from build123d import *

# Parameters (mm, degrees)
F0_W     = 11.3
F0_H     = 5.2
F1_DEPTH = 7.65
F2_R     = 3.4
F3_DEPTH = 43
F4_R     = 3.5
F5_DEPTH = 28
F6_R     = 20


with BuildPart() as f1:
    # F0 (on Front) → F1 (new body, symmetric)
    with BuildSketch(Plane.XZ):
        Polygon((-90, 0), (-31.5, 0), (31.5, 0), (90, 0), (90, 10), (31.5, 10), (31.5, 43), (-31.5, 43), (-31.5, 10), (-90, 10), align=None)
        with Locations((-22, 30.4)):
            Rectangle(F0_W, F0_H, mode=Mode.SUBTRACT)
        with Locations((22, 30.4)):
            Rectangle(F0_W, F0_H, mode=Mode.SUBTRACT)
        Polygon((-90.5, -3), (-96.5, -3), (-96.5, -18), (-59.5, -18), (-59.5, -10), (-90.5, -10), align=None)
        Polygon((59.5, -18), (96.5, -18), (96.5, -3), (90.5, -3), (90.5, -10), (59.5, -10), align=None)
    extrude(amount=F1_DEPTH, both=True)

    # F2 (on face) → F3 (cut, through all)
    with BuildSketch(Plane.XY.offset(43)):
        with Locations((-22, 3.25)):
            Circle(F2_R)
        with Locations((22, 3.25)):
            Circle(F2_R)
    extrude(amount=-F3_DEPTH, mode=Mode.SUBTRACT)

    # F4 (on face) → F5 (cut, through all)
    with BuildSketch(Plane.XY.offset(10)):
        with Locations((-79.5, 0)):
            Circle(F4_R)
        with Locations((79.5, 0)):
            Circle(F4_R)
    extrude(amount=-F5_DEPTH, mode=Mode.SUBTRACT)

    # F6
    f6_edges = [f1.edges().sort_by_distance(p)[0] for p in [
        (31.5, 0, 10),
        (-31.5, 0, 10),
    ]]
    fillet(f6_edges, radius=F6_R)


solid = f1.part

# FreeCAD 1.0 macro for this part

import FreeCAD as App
import Part
import Sketcher
Q = App.Units.Quantity


def edges_at(feature, points):
    """Names of the edges that pass closest to the given points."""
    edges = feature.Shape.Edges
    near = lambda p: min(range(len(edges)), key=lambda i: edges[i].distToShape(Part.Vertex(*p))[0])
    return sorted({f"Edge{near(p) + 1}" for p in points})

doc = App.newDocument("Part")
params = doc.addObject("Spreadsheet::Sheet", "Params")
for row, (alias, value) in enumerate([
    ("sketch1_width", "180 mm"),
    ("sketch1_width2", "63 mm"),
    ("sketch1_width3", "6 mm"),
    ("sketch1_width4", "37 mm"),
    ("sketch1_height", "10 mm"),
    ("pad1_length", "15.3 mm"),
    ("sketch2_diameter", "6.8 mm"),
    ("sketch3_diameter", "7 mm"),
    ("fillet_radius", "20 mm"),
], start=1):
    params.set(f"A{row}", alias)
    params.set(f"B{row}", "=" + value)
    params.setAlias(f"B{row}", alias)

body = doc.addObject("PartDesign::Body", "Body")
body.AllowCompound = True

sketch1 = body.newObject("Sketcher::SketchObject", "Sketch")
sketch1.AttachmentSupport = (doc.getObject("XZ_Plane"), [""])
sketch1.MapMode = "FlatFace"
sketch1.addGeometry([
    Part.LineSegment(App.Vector(-90, 0, 0), App.Vector(90, 0, 0)),
    Part.LineSegment(App.Vector(90, 0, 0), App.Vector(90, 10, 0)),
    Part.LineSegment(App.Vector(90, 10, 0), App.Vector(32, 10, 0)),
    Part.LineSegment(App.Vector(32, 10, 0), App.Vector(32, 43, 0)),
    Part.LineSegment(App.Vector(32, 43, 0), App.Vector(-32, 43, 0)),
    Part.LineSegment(App.Vector(-32, 43, 0), App.Vector(-32, 10, 0)),
    Part.LineSegment(App.Vector(-32, 10, 0), App.Vector(-90, 10, 0)),
    Part.LineSegment(App.Vector(-90, 10, 0), App.Vector(-90, 0, 0)),
    Part.LineSegment(App.Vector(-16, 28, 0), App.Vector(-28, 28, 0)),
    Part.LineSegment(App.Vector(-28, 28, 0), App.Vector(-28, 33, 0)),
    Part.LineSegment(App.Vector(-28, 33, 0), App.Vector(-16, 33, 0)),
    Part.LineSegment(App.Vector(-16, 33, 0), App.Vector(-16, 28, 0)),
    Part.LineSegment(App.Vector(28, 28, 0), App.Vector(16, 28, 0)),
    Part.LineSegment(App.Vector(16, 28, 0), App.Vector(16, 33, 0)),
    Part.LineSegment(App.Vector(16, 33, 0), App.Vector(28, 33, 0)),
    Part.LineSegment(App.Vector(28, 33, 0), App.Vector(28, 28, 0)),
    Part.LineSegment(App.Vector(-90, -3, 0), App.Vector(-96, -3, 0)),
    Part.LineSegment(App.Vector(-96, -3, 0), App.Vector(-96, -18, 0)),
    Part.LineSegment(App.Vector(-96, -18, 0), App.Vector(-60, -18, 0)),
    Part.LineSegment(App.Vector(-60, -18, 0), App.Vector(-60, -10, 0)),
    Part.LineSegment(App.Vector(-60, -10, 0), App.Vector(-90, -10, 0)),
    Part.LineSegment(App.Vector(-90, -10, 0), App.Vector(-90, -3, 0)),
    Part.LineSegment(App.Vector(60, -18, 0), App.Vector(96, -18, 0)),
    Part.LineSegment(App.Vector(96, -18, 0), App.Vector(96, -3, 0)),
    Part.LineSegment(App.Vector(96, -3, 0), App.Vector(90, -3, 0)),
    Part.LineSegment(App.Vector(90, -3, 0), App.Vector(90, -10, 0)),
    Part.LineSegment(App.Vector(90, -10, 0), App.Vector(60, -10, 0)),
    Part.LineSegment(App.Vector(60, -10, 0), App.Vector(60, -18, 0)),
], False)
sketch1.addConstraint([
    Sketcher.Constraint("Coincident", 0, 2, 1, 1),
    Sketcher.Constraint("Coincident", 1, 2, 2, 1),
    Sketcher.Constraint("Coincident", 2, 2, 3, 1),
    Sketcher.Constraint("Coincident", 3, 2, 4, 1),
    Sketcher.Constraint("Coincident", 4, 2, 5, 1),
    Sketcher.Constraint("Coincident", 5, 2, 6, 1),
    Sketcher.Constraint("Coincident", 6, 2, 7, 1),
    Sketcher.Constraint("Coincident", 7, 2, 0, 1),
    Sketcher.Constraint("Coincident", 8, 2, 9, 1),
    Sketcher.Constraint("Coincident", 9, 2, 10, 1),
    Sketcher.Constraint("Coincident", 10, 2, 11, 1),
    Sketcher.Constraint("Coincident", 11, 2, 8, 1),
    Sketcher.Constraint("Coincident", 12, 2, 13, 1),
    Sketcher.Constraint("Coincident", 13, 2, 14, 1),
    Sketcher.Constraint("Coincident", 14, 2, 15, 1),
    Sketcher.Constraint("Coincident", 15, 2, 12, 1),
    Sketcher.Constraint("Coincident", 16, 2, 17, 1),
    Sketcher.Constraint("Coincident", 17, 2, 18, 1),
    Sketcher.Constraint("Coincident", 18, 2, 19, 1),
    Sketcher.Constraint("Coincident", 19, 2, 20, 1),
    Sketcher.Constraint("Coincident", 20, 2, 21, 1),
    Sketcher.Constraint("Coincident", 21, 2, 16, 1),
    Sketcher.Constraint("Coincident", 22, 2, 23, 1),
    Sketcher.Constraint("Coincident", 23, 2, 24, 1),
    Sketcher.Constraint("Coincident", 24, 2, 25, 1),
    Sketcher.Constraint("Coincident", 25, 2, 26, 1),
    Sketcher.Constraint("Coincident", 26, 2, 27, 1),
    Sketcher.Constraint("Coincident", 27, 2, 22, 1),
    Sketcher.Constraint("Horizontal", 0),
    Sketcher.Constraint("Vertical", 1),
    Sketcher.Constraint("Horizontal", 2),
    Sketcher.Constraint("Vertical", 3),
    Sketcher.Constraint("Horizontal", 4),
    Sketcher.Constraint("Vertical", 5),
    Sketcher.Constraint("Horizontal", 6),
    Sketcher.Constraint("Vertical", 7),
    Sketcher.Constraint("Horizontal", 8),
    Sketcher.Constraint("Vertical", 9),
    Sketcher.Constraint("Horizontal", 10),
    Sketcher.Constraint("Vertical", 11),
    Sketcher.Constraint("Horizontal", 12),
    Sketcher.Constraint("Vertical", 13),
    Sketcher.Constraint("Horizontal", 14),
    Sketcher.Constraint("Vertical", 15),
    Sketcher.Constraint("Horizontal", 16),
    Sketcher.Constraint("Vertical", 17),
    Sketcher.Constraint("Horizontal", 18),
    Sketcher.Constraint("Vertical", 19),
    Sketcher.Constraint("Horizontal", 20),
    Sketcher.Constraint("Vertical", 21),
    Sketcher.Constraint("Horizontal", 22),
    Sketcher.Constraint("Vertical", 23),
    Sketcher.Constraint("Horizontal", 24),
    Sketcher.Constraint("Vertical", 25),
    Sketcher.Constraint("Horizontal", 26),
    Sketcher.Constraint("Vertical", 27),
    Sketcher.Constraint("Symmetric", 0, 2, 7, 2, -1, 1),
    Sketcher.Constraint("Symmetric", 2, 2, 5, 2, -2),
    Sketcher.Constraint("Symmetric", 11, 2, 12, 2, -2),
    Sketcher.Constraint("Symmetric", 9, 2, 14, 2, -2),
    Sketcher.Constraint("Symmetric", 17, 2, 22, 2, -2),
    Sketcher.Constraint("Symmetric", 21, 2, 24, 2, -2),
    Sketcher.Constraint("Symmetric", 19, 2, 26, 2, -2),
    Sketcher.Constraint("DistanceX", 0, 1, 0, 2, Q("180 mm")),
    Sketcher.Constraint("DistanceX", 4, 2, 4, 1, Q("63 mm")),
    Sketcher.Constraint("DistanceX", 16, 2, 16, 1, Q("6 mm")),
    Sketcher.Constraint("DistanceX", 18, 1, 18, 2, Q("37 mm")),
    Sketcher.Constraint("DistanceY", 1, 1, 1, 2, Q("10 mm")),
    Sketcher.Constraint("DistanceY", 3, 1, 3, 2, Q("33 mm")),
    Sketcher.Constraint("DistanceY", 17, 2, 17, 1, Q("15 mm")),
    Sketcher.Constraint("DistanceY", 19, 1, 19, 2, Q("8 mm")),
    Sketcher.Constraint("DistanceX", 8, 2, 8, 1, Q("11.3 mm")),
    Sketcher.Constraint("DistanceY", 9, 1, 9, 2, Q("5.2 mm")),
    Sketcher.Constraint("DistanceY", -1, 1, 9, 2, Q("33 mm")),
    Sketcher.Constraint("DistanceY", 16, 2, -1, 1, Q("3 mm")),
    Sketcher.Constraint("DistanceX", 8, 2, 12, 2, Q("44 mm")),
    Sketcher.Constraint("DistanceX", 16, 2, 5, 2, Q("65 mm")),
])
sketch1.setExpression("Constraints[63]", "Params.sketch1_width")
sketch1.setExpression("Constraints[64]", "Params.sketch1_width2")
sketch1.setExpression("Constraints[65]", "Params.sketch1_width3")
sketch1.setExpression("Constraints[66]", "Params.sketch1_width4")
sketch1.setExpression("Constraints[67]", "Params.sketch1_height")
pad1 = body.newObject("PartDesign::Pad", "Pad")
pad1.Profile = sketch1
pad1.setExpression("Length", "Params.pad1_length")
pad1.Midplane = True

sketch2 = body.newObject("Sketcher::SketchObject", "Sketch001")
sketch2.AttachmentSupport = (doc.getObject("XY_Plane"), [""])
sketch2.MapMode = "FlatFace"
sketch2.AttachmentOffset = App.Placement(App.Vector(0, 0, 43), App.Rotation())
sketch2.addGeometry([
    Part.Circle(App.Vector(-22, 3.2, 0), App.Vector(0, 0, 1), 3.4),
    Part.Circle(App.Vector(22, 3.2, 0), App.Vector(0, 0, 1), 3.4),
], False)
sketch2.addConstraint([
    Sketcher.Constraint("Equal", 0, 1),
    Sketcher.Constraint("Symmetric", 0, 3, 1, 3, -2),
    Sketcher.Constraint("Diameter", 0, Q("6.8 mm")),
    Sketcher.Constraint("DistanceX", 0, 3, -1, 1, Q("22 mm")),
    Sketcher.Constraint("DistanceY", -1, 1, 0, 3, Q("3.25 mm")),
])
sketch2.setExpression("Constraints[2]", "Params.sketch2_diameter")
pocket1 = body.newObject("PartDesign::Pocket", "Pocket")
pocket1.Profile = sketch2
pocket1.Type = "ThroughAll"

sketch3 = body.newObject("Sketcher::SketchObject", "Sketch002")
sketch3.AttachmentSupport = (doc.getObject("XY_Plane"), [""])
sketch3.MapMode = "FlatFace"
sketch3.AttachmentOffset = App.Placement(App.Vector(0, 0, 10), App.Rotation())
sketch3.addGeometry([
    Part.Circle(App.Vector(-79.5, 0, 0), App.Vector(0, 0, 1), 3.5),
    Part.Circle(App.Vector(79.5, 0, 0), App.Vector(0, 0, 1), 3.5),
], False)
sketch3.addConstraint([
    Sketcher.Constraint("Equal", 0, 1),
    Sketcher.Constraint("Symmetric", 0, 3, 1, 3, -1, 1),
    Sketcher.Constraint("PointOnObject", 0, 3, -1),
    Sketcher.Constraint("Diameter", 0, Q("7 mm")),
    Sketcher.Constraint("DistanceX", 0, 3, 1, 3, Q("159 mm")),
])
sketch3.setExpression("Constraints[3]", "Params.sketch3_diameter")
pocket2 = body.newObject("PartDesign::Pocket", "Pocket001")
pocket2.Profile = sketch3
pocket2.Type = "ThroughAll"
doc.recompute()

fillet = body.newObject("PartDesign::Fillet", "Fillet")
fillet.Base = (pocket2, edges_at(pocket2, [(31.5, 0, 10), (-31.5, 0, 10)]))
fillet.setExpression("Radius", "Params.fillet_radius")

doc.recompute()
